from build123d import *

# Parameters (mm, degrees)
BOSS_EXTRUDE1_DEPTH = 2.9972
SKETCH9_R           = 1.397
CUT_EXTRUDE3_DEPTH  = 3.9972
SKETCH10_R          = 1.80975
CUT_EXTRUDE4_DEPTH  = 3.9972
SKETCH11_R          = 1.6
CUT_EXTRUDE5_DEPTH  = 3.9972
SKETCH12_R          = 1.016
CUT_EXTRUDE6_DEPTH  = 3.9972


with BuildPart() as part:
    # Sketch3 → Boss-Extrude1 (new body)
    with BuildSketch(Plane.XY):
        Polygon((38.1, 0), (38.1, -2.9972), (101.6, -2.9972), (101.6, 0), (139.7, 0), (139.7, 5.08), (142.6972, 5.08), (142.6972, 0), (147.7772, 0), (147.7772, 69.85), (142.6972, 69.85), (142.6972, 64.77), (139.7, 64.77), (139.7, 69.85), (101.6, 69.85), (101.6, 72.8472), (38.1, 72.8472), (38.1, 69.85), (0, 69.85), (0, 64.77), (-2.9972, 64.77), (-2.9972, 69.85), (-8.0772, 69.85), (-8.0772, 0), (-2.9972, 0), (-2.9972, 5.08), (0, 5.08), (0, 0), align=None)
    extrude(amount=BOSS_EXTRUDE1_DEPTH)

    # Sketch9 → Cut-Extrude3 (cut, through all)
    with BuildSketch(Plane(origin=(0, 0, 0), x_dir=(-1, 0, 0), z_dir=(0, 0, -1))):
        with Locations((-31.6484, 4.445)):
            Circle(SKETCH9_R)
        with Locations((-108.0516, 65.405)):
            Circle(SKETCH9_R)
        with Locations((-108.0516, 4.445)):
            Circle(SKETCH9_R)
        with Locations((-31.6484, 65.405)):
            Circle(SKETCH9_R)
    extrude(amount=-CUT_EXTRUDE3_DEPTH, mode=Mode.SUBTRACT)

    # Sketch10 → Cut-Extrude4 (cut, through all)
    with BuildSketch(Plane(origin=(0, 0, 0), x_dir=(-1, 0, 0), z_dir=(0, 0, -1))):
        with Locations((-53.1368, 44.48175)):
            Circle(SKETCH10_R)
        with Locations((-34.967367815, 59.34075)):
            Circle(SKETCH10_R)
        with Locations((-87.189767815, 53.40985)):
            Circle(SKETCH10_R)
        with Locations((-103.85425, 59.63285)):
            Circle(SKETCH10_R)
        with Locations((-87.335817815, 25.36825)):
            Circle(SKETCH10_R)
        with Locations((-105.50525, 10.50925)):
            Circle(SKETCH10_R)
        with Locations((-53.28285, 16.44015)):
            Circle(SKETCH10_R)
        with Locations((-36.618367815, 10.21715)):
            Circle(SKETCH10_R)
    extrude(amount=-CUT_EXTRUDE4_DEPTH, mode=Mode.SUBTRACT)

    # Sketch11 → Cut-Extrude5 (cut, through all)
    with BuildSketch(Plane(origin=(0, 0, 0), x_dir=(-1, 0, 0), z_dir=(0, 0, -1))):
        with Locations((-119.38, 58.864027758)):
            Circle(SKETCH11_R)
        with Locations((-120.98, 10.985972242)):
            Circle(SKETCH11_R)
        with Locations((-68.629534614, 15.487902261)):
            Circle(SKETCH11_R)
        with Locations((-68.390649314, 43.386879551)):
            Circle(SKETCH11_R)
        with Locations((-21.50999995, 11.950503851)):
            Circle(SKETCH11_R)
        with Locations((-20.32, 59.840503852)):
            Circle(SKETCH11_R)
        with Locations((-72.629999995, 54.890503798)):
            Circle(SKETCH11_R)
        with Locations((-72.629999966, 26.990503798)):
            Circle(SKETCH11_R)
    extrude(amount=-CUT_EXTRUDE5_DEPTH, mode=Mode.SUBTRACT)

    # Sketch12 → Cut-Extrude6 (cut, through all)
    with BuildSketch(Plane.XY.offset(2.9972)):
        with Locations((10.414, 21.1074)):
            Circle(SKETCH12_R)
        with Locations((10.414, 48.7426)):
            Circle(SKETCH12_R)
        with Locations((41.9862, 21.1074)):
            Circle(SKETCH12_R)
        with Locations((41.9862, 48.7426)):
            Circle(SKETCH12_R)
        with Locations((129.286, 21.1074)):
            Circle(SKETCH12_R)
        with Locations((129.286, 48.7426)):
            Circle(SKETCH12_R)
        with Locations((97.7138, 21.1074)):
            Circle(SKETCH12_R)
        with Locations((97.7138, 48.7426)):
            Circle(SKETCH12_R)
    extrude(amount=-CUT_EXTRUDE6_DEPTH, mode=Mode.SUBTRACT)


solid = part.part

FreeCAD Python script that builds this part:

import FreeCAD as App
import Part
import Sketcher
from FreeCAD import Vector
Q = App.Units.Quantity


def add_polygon(sketch, points):
    """Adds a closed chain of lines whose ends are joined by coincident constraints."""
    first, n = sketch.GeometryCount, len(points)
    for a, b in zip(points, points[1:] + points[:1]):
        sketch.addGeometry(Part.LineSegment(App.Vector(*a, 0), App.Vector(*b, 0)), False)
    for i in range(n):
        sketch.addConstraint(Sketcher.Constraint("Coincident", first + i, 2, first + (i + 1) % n, 1))

doc = App.newDocument("Part")
body = doc.addObject("PartDesign::Body", "Body")

sketch1 = body.newObject("Sketcher::SketchObject", "Sketch")
sketch1.AttachmentSupport = (doc.getObject("XY_Plane"), [""])
sketch1.MapMode = "FlatFace"
add_polygon(sketch1, [(38.1, 0), (38.1, -2.9972), (101.6, -2.9972), (101.6, 0), (139.7, 0), (139.7, 5.08), (142.6972, 5.08), (142.6972, 0), (147.7772, 0), (147.7772, 69.85), (142.6972, 69.85), (142.6972, 64.77), (139.7, 64.77), (139.7, 69.85), (101.6, 69.85), (101.6, 72.8472), (38.1, 72.8472), (38.1, 69.85), (0, 69.85), (0, 64.77), (-2.9972, 64.77), (-2.9972, 69.85), (-8.0772, 69.85), (-8.0772, 0), (-2.9972, 0), (-2.9972, 5.08), (0, 5.08), (0, 0)])
sketch1.addConstraint([
    Sketcher.Constraint("Vertical", 0),
    Sketcher.Constraint("Horizontal", 1),
    Sketcher.Constraint("Vertical", 2),
    Sketcher.Constraint("Horizontal", 3),
    Sketcher.Constraint("Vertical", 4),
    Sketcher.Constraint("Horizontal", 5),
    Sketcher.Constraint("Vertical", 6),
    Sketcher.Constraint("Horizontal", 7),
    Sketcher.Constraint("Vertical", 8),
    Sketcher.Constraint("Horizontal", 9),
    Sketcher.Constraint("Vertical", 10),
    Sketcher.Constraint("Horizontal", 11),
    Sketcher.Constraint("Vertical", 12),
    Sketcher.Constraint("Horizontal", 13),
    Sketcher.Constraint("Vertical", 14),
    Sketcher.Constraint("Horizontal", 15),
    Sketcher.Constraint("Vertical", 16),
    Sketcher.Constraint("Horizontal", 17),
    Sketcher.Constraint("Vertical", 18),
    Sketcher.Constraint("Horizontal", 19),
    Sketcher.Constraint("Vertical", 20),
    Sketcher.Constraint("Horizontal", 21),
    Sketcher.Constraint("Vertical", 22),
    Sketcher.Constraint("Horizontal", 23),
    Sketcher.Constraint("Vertical", 24),
    Sketcher.Constraint("Horizontal", 25),
    Sketcher.Constraint("Vertical", 26),
    Sketcher.Constraint("Horizontal", 27),
    Sketcher.Constraint("Coincident", 26, 2, -1, 1),
    Sketcher.Constraint("PointOnObject", 2, 2, -1),
    Sketcher.Constraint("PointOnObject", 6, 2, -1),
    Sketcher.Constraint("PointOnObject", 17, 2, -2),
    Sketcher.Constraint("PointOnObject", 22, 2, -1),
    Sketcher.Constraint("Horizontal", 9, 2, 12, 2),
    Sketcher.Constraint("Horizontal", 13, 2, 16, 2),
    Sketcher.Constraint("Horizontal", 11, 2, 18, 2),
    Sketcher.Constraint("Horizontal", 17, 2, 20, 2),
    Sketcher.Constraint("Horizontal", 5, 2, 24, 2),
    Sketcher.Constraint("Vertical", 6, 2, 9, 2),
    Sketcher.Constraint("Vertical", 4, 2, 11, 2),
    Sketcher.Constraint("Vertical", 2, 2, 13, 2),
    Sketcher.Constraint("Vertical", 0, 2, 15, 2),
    Sketcher.Constraint("Vertical", 20, 2, 23, 2),
    Sketcher.Constraint("Equal", 13, 17),
    Sketcher.Constraint("Equal", 11, 19),
    Sketcher.Constraint("Equal", 9, 21),
    Sketcher.Constraint("Equal", 25, 0),
    Sketcher.Constraint("Equal", 23, 4),
    Sketcher.Constraint("Equal", 6, 10),
    Sketcher.Constraint("Equal", 2, 14),
    Sketcher.Constraint("DistanceX", 1, 1, 1, 2, Q("2.5 in")),
    Sketcher.Constraint("DistanceX", 3, 1, 3, 2, Q("1.5 in")),
    Sketcher.Constraint("DistanceX", 7, 1, 7, 2, Q("0.2 in")),
    Sketcher.Constraint("DistanceY", 8, 1, 8, 2, Q("2.75 in")),
    Sketcher.Constraint("DistanceX", 5, 1, 5, 2, Q("0.118 in")),
])
pad1 = body.newObject("PartDesign::Pad", "Pad")
pad1.Profile = sketch1
pad1.Length = Q("0.118 in")

sketch2 = body.newObject("Sketcher::SketchObject", "Sketch001")
sketch2.AttachmentSupport = (doc.getObject("XY_Plane"), [""])
sketch2.MapMode = "FlatFace"
sketch2.addGeometry([
    Part.Circle(Vector(31.6484, 4.445, 0), Vector(0, 0, 1), 1.397),
    Part.Circle(Vector(108.0516, 65.405, 0), Vector(0, 0, 1), 1.397),
    Part.Circle(Vector(108.0516, 4.445, 0), Vector(0, 0, 1), 1.397),
    Part.Circle(Vector(31.6484, 65.405, 0), Vector(0, 0, 1), 1.397),
], False)
sketch2.addConstraint([
    Sketcher.Constraint("Equal", 0, 1),
    Sketcher.Constraint("Equal", 1, 2),
    Sketcher.Constraint("Equal", 2, 3),
    Sketcher.Constraint("Horizontal", 0, 3, 2, 3),
    Sketcher.Constraint("Horizontal", 1, 3, 3, 3),
    Sketcher.Constraint("Vertical", 1, 3, 2, 3),
    Sketcher.Constraint("Vertical", 0, 3, 3, 3),
    Sketcher.Constraint("Diameter", 0, Q("0.11 in")),
    Sketcher.Constraint("DistanceY", 0, 3, 1, 3, Q("2.4 in")),
    Sketcher.Constraint("DistanceX", -1, 1, 0, 3, Q("1.246 in")),
    Sketcher.Constraint("DistanceY", -1, 1, 0, 3, Q("0.175 in")),
    Sketcher.Constraint("DistanceX", -1, 1, 1, 3, Q("4.254 in")),
])
pocket1 = body.newObject("PartDesign::Pocket", "Pocket")
pocket1.Profile = sketch2
pocket1.Type = "ThroughAll"
pocket1.Reversed = True

sketch3 = body.newObject("Sketcher::SketchObject", "Sketch002")
sketch3.AttachmentSupport = (doc.getObject("XY_Plane"), [""])
sketch3.MapMode = "FlatFace"
sketch3.addGeometry([
    Part.Circle(Vector(53.1368, 44.48175, 0), Vector(0, 0, 1), 1.80975),
    Part.Circle(Vector(34.967368, 59.34075, 0), Vector(0, 0, 1), 1.80975),
    Part.Circle(Vector(87.189768, 53.40985, 0), Vector(0, 0, 1), 1.80975),
    Part.Circle(Vector(103.85425, 59.63285, 0), Vector(0, 0, 1), 1.80975),
    Part.Circle(Vector(87.335818, 25.36825, 0), Vector(0, 0, 1), 1.80975),
    Part.Circle(Vector(105.50525, 10.50925, 0), Vector(0, 0, 1), 1.80975),
    Part.Circle(Vector(53.28285, 16.44015, 0), Vector(0, 0, 1), 1.80975),
    Part.Circle(Vector(36.618368, 10.21715, 0), Vector(0, 0, 1), 1.80975),
], False)
sketch3.addConstraint([
    Sketcher.Constraint("Equal", 0, 1),
    Sketcher.Constraint("Equal", 1, 2),
    Sketcher.Constraint("Equal", 2, 3),
    Sketcher.Constraint("Equal", 3, 4),
    Sketcher.Constraint("Equal", 4, 5),
    Sketcher.Constraint("Equal", 5, 6),
    Sketcher.Constraint("Equal", 6, 7),
    Sketcher.Constraint("Diameter", 0, Q("0.1425 in")),
    Sketcher.Constraint("DistanceX", -1, 1, 0, 3, Q("2.092 in")),
    Sketcher.Constraint("DistanceY", 0, 3, 1, 3, Q("0.585 in")),
    Sketcher.Constraint("DistanceX", 1, 3, 2, 3, Q("2.056 in")),
    Sketcher.Constraint("DistanceY", 2, 3, 3, 3, Q("0.245 in")),
    Sketcher.Constraint("DistanceY", 4, 3, 2, 3, Q("1.104 in")),
    Sketcher.Constraint("DistanceY", 5, 3, 4, 3, Q("0.585 in")),
    Sketcher.Constraint("DistanceX", 3, 3, 5, 3, Q("0.065 in")),
    Sketcher.Constraint("DistanceY", 6, 3, 0, 3, Q("1.104 in")),
    Sketcher.Constraint("DistanceX", 6, 3, 5, 3, Q("2.056 in")),
    Sketcher.Constraint("DistanceY", 7, 3, 6, 3, Q("0.245 in")),
    Sketcher.Constraint("DistanceX", 1, 3, 7, 3, Q("0.065 in")),
    Sketcher.Constraint("DistanceY", 0, 3, 2, 3, Q("0.3515 in")),
    Sketcher.Constraint("DistanceY", -1, 1, 0, 3, 44.48175),
    Sketcher.Constraint("DistanceX", -1, 1, 3, 3, 103.85425),
    Sketcher.Constraint("DistanceX", 2, 3, 4, 3, 0.14605),
    Sketcher.Constraint("DistanceX", -1, 1, 1, 3, 34.967368),
])
pocket2 = body.newObject("PartDesign::Pocket", "Pocket001")
pocket2.Profile = sketch3
pocket2.Type = "ThroughAll"
pocket2.Reversed = True

sketch4 = body.newObject("Sketcher::SketchObject", "Sketch003")
sketch4.AttachmentSupport = (doc.getObject("XY_Plane"), [""])
sketch4.MapMode = "FlatFace"
sketch4.addGeometry([
    Part.Circle(Vector(119.38, 58.864028, 0), Vector(0, 0, 1), 1.6),
    Part.Circle(Vector(120.98, 10.985972, 0), Vector(0, 0, 1), 1.6),
    Part.Circle(Vector(68.629535, 15.487902, 0), Vector(0, 0, 1), 1.6),
    Part.Circle(Vector(68.390649, 43.38688, 0), Vector(0, 0, 1), 1.6),
    Part.Circle(Vector(21.51, 11.950504, 0), Vector(0, 0, 1), 1.6),
    Part.Circle(Vector(20.32, 59.840504, 0), Vector(0, 0, 1), 1.6),
    Part.Circle(Vector(72.63, 54.890504, 0), Vector(0, 0, 1), 1.6),
    Part.Circle(Vector(72.63, 26.990504, 0), Vector(0, 0, 1), 1.6),
], False)
sketch4.addConstraint([
    Sketcher.Constraint("Equal", 0, 1),
    Sketcher.Constraint("Equal", 1, 2),
    Sketcher.Constraint("Equal", 2, 3),
    Sketcher.Constraint("Equal", 3, 4),
    Sketcher.Constraint("Equal", 4, 5),
    Sketcher.Constraint("Equal", 5, 6),
    Sketcher.Constraint("Equal", 6, 7),
    Sketcher.Constraint("Vertical", 6, 3, 7, 3),
    Sketcher.Constraint("DistanceX", -1, 1, 0, 3, Q("4.7 in")),
    Sketcher.Constraint("DistanceX", -1, 1, 5, 3, Q("0.8 in")),
    Sketcher.Constraint("Diameter", 0, 3.2),
    Sketcher.Constraint("DistanceX", -1, 1, 1, 3, 120.98),
    Sketcher.Constraint("DistanceX", -1, 1, 4, 3, 21.51),
    Sketcher.Constraint("DistanceX", -1, 1, 6, 3, 72.63),
    Sketcher.Constraint("DistanceY", 4, 3, 2, 3, 3.537398),
    Sketcher.Constraint("DistanceY", 4, 3, 5, 3, 47.89),
    Sketcher.Constraint("DistanceY", 2, 3, 6, 3, 39.402602),
    Sketcher.Constraint("DistanceY", 2, 3, 7, 3, 11.502602),
    Sketcher.Constraint("DistanceX", -1, 1, 3, 3, 68.390649),
    Sketcher.Constraint("DistanceY", -1, 1, 3, 3, 43.38688),
    Sketcher.Constraint("DistanceY", 1, 3, 2, 3, 4.50193),
    Sketcher.Constraint("DistanceY", 3, 3, 0, 3, 15.477148),
    Sketcher.Constraint("DistanceY", -1, 1, 1, 3, 10.985972),
    Sketcher.Constraint("DistanceX", -1, 1, 2, 3, 68.629535),
])
pocket3 = body.newObject("PartDesign::Pocket", "Pocket002")
pocket3.Profile = sketch4
pocket3.Type = "ThroughAll"
pocket3.Reversed = True

sketch5 = body.newObject("Sketcher::SketchObject", "Sketch004")
sketch5.AttachmentSupport = (doc.getObject("XY_Plane"), [""])
sketch5.MapMode = "FlatFace"
sketch5.AttachmentOffset = App.Placement(Vector(0, 0, 0.118 * 25.4), App.Rotation())
sketch5.addGeometry([
    Part.Circle(Vector(10.414, 21.1074, 0), Vector(0, 0, 1), 1.016),
    Part.Circle(Vector(10.414, 48.7426, 0), Vector(0, 0, 1), 1.016),
    Part.Circle(Vector(41.9862, 21.1074, 0), Vector(0, 0, 1), 1.016),
    Part.Circle(Vector(41.9862, 48.7426, 0), Vector(0, 0, 1), 1.016),
    Part.Circle(Vector(129.286, 21.1074, 0), Vector(0, 0, 1), 1.016),
    Part.Circle(Vector(129.286, 48.7426, 0), Vector(0, 0, 1), 1.016),
    Part.Circle(Vector(97.7138, 21.1074, 0), Vector(0, 0, 1), 1.016),
    Part.Circle(Vector(97.7138, 48.7426, 0), Vector(0, 0, 1), 1.016),
], False)
sketch5.addConstraint([
    Sketcher.Constraint("Equal", 0, 1),
    Sketcher.Constraint("Equal", 1, 2),
    Sketcher.Constraint("Equal", 2, 3),
    Sketcher.Constraint("Equal", 3, 4),
    Sketcher.Constraint("Equal", 4, 5),
    Sketcher.Constraint("Equal", 5, 6),
    Sketcher.Constraint("Equal", 6, 7),
    Sketcher.Constraint("Horizontal", 0, 3, 2, 3),
    Sketcher.Constraint("Horizontal", 1, 3, 3, 3),
    Sketcher.Constraint("Horizontal", 2, 3, 4, 3),
    Sketcher.Constraint("Horizontal", 3, 3, 5, 3),
    Sketcher.Constraint("Horizontal", 4, 3, 6, 3),
    Sketcher.Constraint("Horizontal", 5, 3, 7, 3),
    Sketcher.Constraint("Vertical", 0, 3, 1, 3),
    Sketcher.Constraint("Vertical", 2, 3, 3, 3),
    Sketcher.Constraint("Vertical", 4, 3, 5, 3),
    Sketcher.Constraint("Vertical", 6, 3, 7, 3),
    Sketcher.Constraint("Diameter", 0, Q("0.08 in")),
    Sketcher.Constraint("DistanceX", -1, 1, 0, 3, Q("0.41 in")),
    Sketcher.Constraint("DistanceX", -1, 1, 4, 3, Q("5.09 in")),
    Sketcher.Constraint("DistanceY", -1, 1, 0, 3, Q("0.831 in")),
    Sketcher.Constraint("DistanceY", -1, 1, 1, 3, Q("1.919 in")),
    Sketcher.Constraint("DistanceX", -1, 1, 2, 3, Q("1.653 in")),
    Sketcher.Constraint("DistanceX", -1, 1, 6, 3, Q("3.847 in")),
])
pocket4 = body.newObject("PartDesign::Pocket", "Pocket003")
pocket4.Profile = sketch5
pocket4.Type = "ThroughAll"

doc.recompute()
